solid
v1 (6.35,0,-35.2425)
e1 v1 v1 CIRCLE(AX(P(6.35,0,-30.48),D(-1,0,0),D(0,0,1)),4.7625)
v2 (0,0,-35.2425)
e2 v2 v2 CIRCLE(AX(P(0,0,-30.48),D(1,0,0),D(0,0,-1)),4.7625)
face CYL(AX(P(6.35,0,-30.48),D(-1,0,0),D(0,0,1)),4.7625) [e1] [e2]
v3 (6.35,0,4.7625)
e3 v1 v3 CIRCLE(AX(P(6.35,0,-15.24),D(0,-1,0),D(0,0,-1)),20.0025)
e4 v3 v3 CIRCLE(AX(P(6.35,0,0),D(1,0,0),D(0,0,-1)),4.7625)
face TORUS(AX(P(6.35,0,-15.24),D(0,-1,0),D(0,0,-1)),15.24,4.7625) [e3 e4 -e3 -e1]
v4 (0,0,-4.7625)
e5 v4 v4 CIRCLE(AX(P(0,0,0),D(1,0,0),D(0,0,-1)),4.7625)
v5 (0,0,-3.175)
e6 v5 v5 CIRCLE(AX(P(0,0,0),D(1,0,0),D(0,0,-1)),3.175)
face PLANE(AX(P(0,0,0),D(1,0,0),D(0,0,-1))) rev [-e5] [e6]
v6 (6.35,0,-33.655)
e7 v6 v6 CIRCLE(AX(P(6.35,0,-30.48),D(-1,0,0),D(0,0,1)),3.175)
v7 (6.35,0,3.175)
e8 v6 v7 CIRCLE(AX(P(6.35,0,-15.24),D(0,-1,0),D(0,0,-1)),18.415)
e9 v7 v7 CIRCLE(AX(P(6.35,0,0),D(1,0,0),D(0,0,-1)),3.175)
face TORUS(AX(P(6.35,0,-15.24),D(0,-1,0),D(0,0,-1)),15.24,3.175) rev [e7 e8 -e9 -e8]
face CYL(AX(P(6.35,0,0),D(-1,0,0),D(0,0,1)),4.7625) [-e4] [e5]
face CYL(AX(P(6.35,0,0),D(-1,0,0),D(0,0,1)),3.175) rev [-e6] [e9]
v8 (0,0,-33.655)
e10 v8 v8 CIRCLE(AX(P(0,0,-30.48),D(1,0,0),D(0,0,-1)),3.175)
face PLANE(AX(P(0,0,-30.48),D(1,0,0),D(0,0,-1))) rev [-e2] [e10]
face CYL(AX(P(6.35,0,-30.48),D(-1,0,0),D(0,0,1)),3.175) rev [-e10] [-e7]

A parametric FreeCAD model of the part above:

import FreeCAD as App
import Part
import Sketcher
from FreeCAD import Vector
Q = App.Units.Quantity

doc = App.newDocument("Part")
params = doc.addObject("Spreadsheet::Sheet", "Params")
for row, (alias, value) in enumerate([
    ("sketch1_diameter", "0.25 in"),
    ("sketch1_diameter2", "0.375 in"),
    ("pad1_length", "0.25 in"),
    ("sketch2_diameter", "0.25 in"),
    ("sketch2_diameter2", "0.375 in"),
    ("pad2_length", "0.25 in"),
    ("sketch3_diameter", "0.25 in"),
    ("sketch3_diameter2", "0.375 in"),
    ("revolution_angle", "180 deg"),
], start=1):
    params.set(f"A{row}", alias)
    params.set(f"B{row}", "=" + value)
    params.setAlias(f"B{row}", alias)

body = doc.addObject("PartDesign::Body", "Body")

sketch1 = body.newObject("Sketcher::SketchObject", "Sketch")
sketch1.AttachmentSupport = (doc.getObject("YZ_Plane"), [""])
sketch1.MapMode = "FlatFace"
sketch1.addGeometry([
    Part.Circle(Vector(0, 0, 0), Vector(0, 0, 1), 4.8),
    Part.Circle(Vector(0, 0, 0), Vector(0, 0, 1), 3.2),
], False)
sketch1.addConstraint([
    Sketcher.Constraint("Coincident", 0, 3, -1, 1),
    Sketcher.Constraint("Coincident", 1, 3, -1, 1),
    Sketcher.Constraint("Diameter", 1, Q("0.25 in")),
    Sketcher.Constraint("Diameter", 0, Q("0.375 in")),
])
sketch1.setExpression("Constraints[2]", "Params.sketch1_diameter")
sketch1.setExpression("Constraints[3]", "Params.sketch1_diameter2")
pad1 = body.newObject("PartDesign::Pad", "Pad")
pad1.Profile = sketch1
pad1.setExpression("Length", "Params.pad1_length")
body2 = doc.addObject("PartDesign::Body", "Body001")

sketch2 = body2.newObject("Sketcher::SketchObject", "Sketch001")
sketch2.AttachmentSupport = (doc.getObject("YZ_Plane001"), [""])
sketch2.MapMode = "FlatFace"
sketch2.addGeometry([
    Part.Circle(Vector(0, -30.5, 0), Vector(0, 0, 1), 4.8),
    Part.Circle(Vector(0, -30.5, 0), Vector(0, 0, 1), 3.2),
], False)
sketch2.addConstraint([
    Sketcher.Constraint("Coincident", 1, 3, 0, 3),
    Sketcher.Constraint("PointOnObject", 0, 3, -2),
    Sketcher.Constraint("Diameter", 1, Q("0.25 in")),
    Sketcher.Constraint("Diameter", 0, Q("0.375 in")),
    Sketcher.Constraint("DistanceY", 0, 3, -1, 1, Q("1.2 in")),
])
sketch2.setExpression("Constraints[2]", "Params.sketch2_diameter")
sketch2.setExpression("Constraints[3]", "Params.sketch2_diameter2")
pad2 = body2.newObject("PartDesign::Pad", "Pad001")
pad2.Profile = sketch2
pad2.setExpression("Length", "Params.pad2_length")
body.AllowCompound = True
doc.recompute()

boolean = body.newObject("PartDesign::Boolean", "Boolean")
boolean.Type = "Fuse"
boolean.addObjects([body2])

sketch3 = body.newObject("Sketcher::SketchObject", "Sketch002")
sketch3.AttachmentSupport = (doc.getObject("YZ_Plane"), [""])
sketch3.MapMode = "FlatFace"
sketch3.AttachmentOffset = App.Placement(Vector(0, 0, 0.25 * 25.4), App.Rotation())
sketch3.addGeometry([
    Part.Circle(Vector(0, 0, 0), Vector(0, 0, 1), 4.8),
    Part.Circle(Vector(0, 0, 0), Vector(0, 0, 1), 3.2),
], False)
sketch3.addGeometry(Part.LineSegment(Vector(0, -15.2, 0), Vector(10, -15.2, 0)), True)
sketch3.addConstraint([
    Sketcher.Constraint("Horizontal", 2),
    Sketcher.Constraint("Coincident", 0, 3, -1, 1),
    Sketcher.Constraint("Coincident", 1, 3, -1, 1),
    Sketcher.Constraint("PointOnObject", 2, 1, -2),
    Sketcher.Constraint("Diameter", 1, Q("0.25 in")),
    Sketcher.Constraint("Diameter", 0, Q("0.375 in")),
    Sketcher.Constraint("DistanceY", 2, 1, -1, 1, Q("0.6 in")),
    Sketcher.Constraint("DistanceX", 2, 1, 2, 2, Q("10 mm")),
])
sketch3.setExpression("Constraints[4]", "Params.sketch3_diameter")
sketch3.setExpression("Constraints[5]", "Params.sketch3_diameter2")
revolution = body.newObject("PartDesign::Revolution", "Revolution")
revolution.Profile = sketch3
revolution.ReferenceAxis = (sketch3, ["Axis0"])
revolution.setExpression("Angle", "Params.revolution_angle")

doc.recompute()
